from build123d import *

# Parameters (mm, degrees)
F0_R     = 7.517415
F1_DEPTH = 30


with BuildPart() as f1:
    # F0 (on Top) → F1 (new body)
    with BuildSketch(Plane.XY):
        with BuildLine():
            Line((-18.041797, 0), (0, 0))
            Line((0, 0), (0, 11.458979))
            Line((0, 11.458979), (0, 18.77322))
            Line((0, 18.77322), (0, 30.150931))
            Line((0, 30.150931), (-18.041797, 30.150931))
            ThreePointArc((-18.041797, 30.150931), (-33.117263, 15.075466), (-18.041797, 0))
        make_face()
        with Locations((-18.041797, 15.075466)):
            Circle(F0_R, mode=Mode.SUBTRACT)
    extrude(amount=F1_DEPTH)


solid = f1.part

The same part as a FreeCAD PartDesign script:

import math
import FreeCAD as App
import Part
import Sketcher

V = App.Vector

doc = App.newDocument("Part")
body = doc.addObject("PartDesign::Body", "Body")

# Sketch on XY plane
sketch1 = doc.addObject("Sketcher::SketchObject", "Sketch")
body.addObject(sketch1)
sketch1.AttachmentSupport = (doc.XY_Plane, [""])
sketch1.MapMode = "FlatFace"
sketch1.addGeometry([
    Part.LineSegment(V(-18, 0, 0), V(0, 0, 0)),  # 0
    Part.LineSegment(V(0, 0, 0), V(0, 30, 0)),  # 1
    Part.LineSegment(V(0, 30, 0), V(-18, 30, 0)),  # 2
    Part.ArcOfCircle(Part.Circle(V(-18, 15, 0), V(0, 0, 1), 15), math.radians(90), math.radians(270)),  # 3
    Part.Circle(V(-18, 15, 0), V(0, 0, 1), 8),  # 4
], False)
sketch1.addConstraint([
    Sketcher.Constraint("Coincident", 0, 2, 1, 1),
    Sketcher.Constraint("Coincident", 1, 2, 2, 1),
    Sketcher.Constraint("Tangent", 2, 2, 3, 1),
    Sketcher.Constraint("Tangent", 3, 2, 0, 1),
    Sketcher.Constraint("Horizontal", 0),
    Sketcher.Constraint("Vertical", 1),
    Sketcher.Constraint("Horizontal", 2),
    Sketcher.Constraint("Coincident", 0, 2, -1, 1),
    Sketcher.Constraint("Coincident", 4, 3, 3, 3),
    Sketcher.Constraint("Diameter", 4, 15.03483),
    Sketcher.Constraint("Radius", 3, 15.075465),
    Sketcher.Constraint("DistanceX", 0, 1, 0, 2, 18.041797),
])
pad1 = doc.addObject("PartDesign::Pad", "Pad")
body.addObject(pad1)
pad1.Profile = sketch1
pad1.Length = 30

doc.recompute()
